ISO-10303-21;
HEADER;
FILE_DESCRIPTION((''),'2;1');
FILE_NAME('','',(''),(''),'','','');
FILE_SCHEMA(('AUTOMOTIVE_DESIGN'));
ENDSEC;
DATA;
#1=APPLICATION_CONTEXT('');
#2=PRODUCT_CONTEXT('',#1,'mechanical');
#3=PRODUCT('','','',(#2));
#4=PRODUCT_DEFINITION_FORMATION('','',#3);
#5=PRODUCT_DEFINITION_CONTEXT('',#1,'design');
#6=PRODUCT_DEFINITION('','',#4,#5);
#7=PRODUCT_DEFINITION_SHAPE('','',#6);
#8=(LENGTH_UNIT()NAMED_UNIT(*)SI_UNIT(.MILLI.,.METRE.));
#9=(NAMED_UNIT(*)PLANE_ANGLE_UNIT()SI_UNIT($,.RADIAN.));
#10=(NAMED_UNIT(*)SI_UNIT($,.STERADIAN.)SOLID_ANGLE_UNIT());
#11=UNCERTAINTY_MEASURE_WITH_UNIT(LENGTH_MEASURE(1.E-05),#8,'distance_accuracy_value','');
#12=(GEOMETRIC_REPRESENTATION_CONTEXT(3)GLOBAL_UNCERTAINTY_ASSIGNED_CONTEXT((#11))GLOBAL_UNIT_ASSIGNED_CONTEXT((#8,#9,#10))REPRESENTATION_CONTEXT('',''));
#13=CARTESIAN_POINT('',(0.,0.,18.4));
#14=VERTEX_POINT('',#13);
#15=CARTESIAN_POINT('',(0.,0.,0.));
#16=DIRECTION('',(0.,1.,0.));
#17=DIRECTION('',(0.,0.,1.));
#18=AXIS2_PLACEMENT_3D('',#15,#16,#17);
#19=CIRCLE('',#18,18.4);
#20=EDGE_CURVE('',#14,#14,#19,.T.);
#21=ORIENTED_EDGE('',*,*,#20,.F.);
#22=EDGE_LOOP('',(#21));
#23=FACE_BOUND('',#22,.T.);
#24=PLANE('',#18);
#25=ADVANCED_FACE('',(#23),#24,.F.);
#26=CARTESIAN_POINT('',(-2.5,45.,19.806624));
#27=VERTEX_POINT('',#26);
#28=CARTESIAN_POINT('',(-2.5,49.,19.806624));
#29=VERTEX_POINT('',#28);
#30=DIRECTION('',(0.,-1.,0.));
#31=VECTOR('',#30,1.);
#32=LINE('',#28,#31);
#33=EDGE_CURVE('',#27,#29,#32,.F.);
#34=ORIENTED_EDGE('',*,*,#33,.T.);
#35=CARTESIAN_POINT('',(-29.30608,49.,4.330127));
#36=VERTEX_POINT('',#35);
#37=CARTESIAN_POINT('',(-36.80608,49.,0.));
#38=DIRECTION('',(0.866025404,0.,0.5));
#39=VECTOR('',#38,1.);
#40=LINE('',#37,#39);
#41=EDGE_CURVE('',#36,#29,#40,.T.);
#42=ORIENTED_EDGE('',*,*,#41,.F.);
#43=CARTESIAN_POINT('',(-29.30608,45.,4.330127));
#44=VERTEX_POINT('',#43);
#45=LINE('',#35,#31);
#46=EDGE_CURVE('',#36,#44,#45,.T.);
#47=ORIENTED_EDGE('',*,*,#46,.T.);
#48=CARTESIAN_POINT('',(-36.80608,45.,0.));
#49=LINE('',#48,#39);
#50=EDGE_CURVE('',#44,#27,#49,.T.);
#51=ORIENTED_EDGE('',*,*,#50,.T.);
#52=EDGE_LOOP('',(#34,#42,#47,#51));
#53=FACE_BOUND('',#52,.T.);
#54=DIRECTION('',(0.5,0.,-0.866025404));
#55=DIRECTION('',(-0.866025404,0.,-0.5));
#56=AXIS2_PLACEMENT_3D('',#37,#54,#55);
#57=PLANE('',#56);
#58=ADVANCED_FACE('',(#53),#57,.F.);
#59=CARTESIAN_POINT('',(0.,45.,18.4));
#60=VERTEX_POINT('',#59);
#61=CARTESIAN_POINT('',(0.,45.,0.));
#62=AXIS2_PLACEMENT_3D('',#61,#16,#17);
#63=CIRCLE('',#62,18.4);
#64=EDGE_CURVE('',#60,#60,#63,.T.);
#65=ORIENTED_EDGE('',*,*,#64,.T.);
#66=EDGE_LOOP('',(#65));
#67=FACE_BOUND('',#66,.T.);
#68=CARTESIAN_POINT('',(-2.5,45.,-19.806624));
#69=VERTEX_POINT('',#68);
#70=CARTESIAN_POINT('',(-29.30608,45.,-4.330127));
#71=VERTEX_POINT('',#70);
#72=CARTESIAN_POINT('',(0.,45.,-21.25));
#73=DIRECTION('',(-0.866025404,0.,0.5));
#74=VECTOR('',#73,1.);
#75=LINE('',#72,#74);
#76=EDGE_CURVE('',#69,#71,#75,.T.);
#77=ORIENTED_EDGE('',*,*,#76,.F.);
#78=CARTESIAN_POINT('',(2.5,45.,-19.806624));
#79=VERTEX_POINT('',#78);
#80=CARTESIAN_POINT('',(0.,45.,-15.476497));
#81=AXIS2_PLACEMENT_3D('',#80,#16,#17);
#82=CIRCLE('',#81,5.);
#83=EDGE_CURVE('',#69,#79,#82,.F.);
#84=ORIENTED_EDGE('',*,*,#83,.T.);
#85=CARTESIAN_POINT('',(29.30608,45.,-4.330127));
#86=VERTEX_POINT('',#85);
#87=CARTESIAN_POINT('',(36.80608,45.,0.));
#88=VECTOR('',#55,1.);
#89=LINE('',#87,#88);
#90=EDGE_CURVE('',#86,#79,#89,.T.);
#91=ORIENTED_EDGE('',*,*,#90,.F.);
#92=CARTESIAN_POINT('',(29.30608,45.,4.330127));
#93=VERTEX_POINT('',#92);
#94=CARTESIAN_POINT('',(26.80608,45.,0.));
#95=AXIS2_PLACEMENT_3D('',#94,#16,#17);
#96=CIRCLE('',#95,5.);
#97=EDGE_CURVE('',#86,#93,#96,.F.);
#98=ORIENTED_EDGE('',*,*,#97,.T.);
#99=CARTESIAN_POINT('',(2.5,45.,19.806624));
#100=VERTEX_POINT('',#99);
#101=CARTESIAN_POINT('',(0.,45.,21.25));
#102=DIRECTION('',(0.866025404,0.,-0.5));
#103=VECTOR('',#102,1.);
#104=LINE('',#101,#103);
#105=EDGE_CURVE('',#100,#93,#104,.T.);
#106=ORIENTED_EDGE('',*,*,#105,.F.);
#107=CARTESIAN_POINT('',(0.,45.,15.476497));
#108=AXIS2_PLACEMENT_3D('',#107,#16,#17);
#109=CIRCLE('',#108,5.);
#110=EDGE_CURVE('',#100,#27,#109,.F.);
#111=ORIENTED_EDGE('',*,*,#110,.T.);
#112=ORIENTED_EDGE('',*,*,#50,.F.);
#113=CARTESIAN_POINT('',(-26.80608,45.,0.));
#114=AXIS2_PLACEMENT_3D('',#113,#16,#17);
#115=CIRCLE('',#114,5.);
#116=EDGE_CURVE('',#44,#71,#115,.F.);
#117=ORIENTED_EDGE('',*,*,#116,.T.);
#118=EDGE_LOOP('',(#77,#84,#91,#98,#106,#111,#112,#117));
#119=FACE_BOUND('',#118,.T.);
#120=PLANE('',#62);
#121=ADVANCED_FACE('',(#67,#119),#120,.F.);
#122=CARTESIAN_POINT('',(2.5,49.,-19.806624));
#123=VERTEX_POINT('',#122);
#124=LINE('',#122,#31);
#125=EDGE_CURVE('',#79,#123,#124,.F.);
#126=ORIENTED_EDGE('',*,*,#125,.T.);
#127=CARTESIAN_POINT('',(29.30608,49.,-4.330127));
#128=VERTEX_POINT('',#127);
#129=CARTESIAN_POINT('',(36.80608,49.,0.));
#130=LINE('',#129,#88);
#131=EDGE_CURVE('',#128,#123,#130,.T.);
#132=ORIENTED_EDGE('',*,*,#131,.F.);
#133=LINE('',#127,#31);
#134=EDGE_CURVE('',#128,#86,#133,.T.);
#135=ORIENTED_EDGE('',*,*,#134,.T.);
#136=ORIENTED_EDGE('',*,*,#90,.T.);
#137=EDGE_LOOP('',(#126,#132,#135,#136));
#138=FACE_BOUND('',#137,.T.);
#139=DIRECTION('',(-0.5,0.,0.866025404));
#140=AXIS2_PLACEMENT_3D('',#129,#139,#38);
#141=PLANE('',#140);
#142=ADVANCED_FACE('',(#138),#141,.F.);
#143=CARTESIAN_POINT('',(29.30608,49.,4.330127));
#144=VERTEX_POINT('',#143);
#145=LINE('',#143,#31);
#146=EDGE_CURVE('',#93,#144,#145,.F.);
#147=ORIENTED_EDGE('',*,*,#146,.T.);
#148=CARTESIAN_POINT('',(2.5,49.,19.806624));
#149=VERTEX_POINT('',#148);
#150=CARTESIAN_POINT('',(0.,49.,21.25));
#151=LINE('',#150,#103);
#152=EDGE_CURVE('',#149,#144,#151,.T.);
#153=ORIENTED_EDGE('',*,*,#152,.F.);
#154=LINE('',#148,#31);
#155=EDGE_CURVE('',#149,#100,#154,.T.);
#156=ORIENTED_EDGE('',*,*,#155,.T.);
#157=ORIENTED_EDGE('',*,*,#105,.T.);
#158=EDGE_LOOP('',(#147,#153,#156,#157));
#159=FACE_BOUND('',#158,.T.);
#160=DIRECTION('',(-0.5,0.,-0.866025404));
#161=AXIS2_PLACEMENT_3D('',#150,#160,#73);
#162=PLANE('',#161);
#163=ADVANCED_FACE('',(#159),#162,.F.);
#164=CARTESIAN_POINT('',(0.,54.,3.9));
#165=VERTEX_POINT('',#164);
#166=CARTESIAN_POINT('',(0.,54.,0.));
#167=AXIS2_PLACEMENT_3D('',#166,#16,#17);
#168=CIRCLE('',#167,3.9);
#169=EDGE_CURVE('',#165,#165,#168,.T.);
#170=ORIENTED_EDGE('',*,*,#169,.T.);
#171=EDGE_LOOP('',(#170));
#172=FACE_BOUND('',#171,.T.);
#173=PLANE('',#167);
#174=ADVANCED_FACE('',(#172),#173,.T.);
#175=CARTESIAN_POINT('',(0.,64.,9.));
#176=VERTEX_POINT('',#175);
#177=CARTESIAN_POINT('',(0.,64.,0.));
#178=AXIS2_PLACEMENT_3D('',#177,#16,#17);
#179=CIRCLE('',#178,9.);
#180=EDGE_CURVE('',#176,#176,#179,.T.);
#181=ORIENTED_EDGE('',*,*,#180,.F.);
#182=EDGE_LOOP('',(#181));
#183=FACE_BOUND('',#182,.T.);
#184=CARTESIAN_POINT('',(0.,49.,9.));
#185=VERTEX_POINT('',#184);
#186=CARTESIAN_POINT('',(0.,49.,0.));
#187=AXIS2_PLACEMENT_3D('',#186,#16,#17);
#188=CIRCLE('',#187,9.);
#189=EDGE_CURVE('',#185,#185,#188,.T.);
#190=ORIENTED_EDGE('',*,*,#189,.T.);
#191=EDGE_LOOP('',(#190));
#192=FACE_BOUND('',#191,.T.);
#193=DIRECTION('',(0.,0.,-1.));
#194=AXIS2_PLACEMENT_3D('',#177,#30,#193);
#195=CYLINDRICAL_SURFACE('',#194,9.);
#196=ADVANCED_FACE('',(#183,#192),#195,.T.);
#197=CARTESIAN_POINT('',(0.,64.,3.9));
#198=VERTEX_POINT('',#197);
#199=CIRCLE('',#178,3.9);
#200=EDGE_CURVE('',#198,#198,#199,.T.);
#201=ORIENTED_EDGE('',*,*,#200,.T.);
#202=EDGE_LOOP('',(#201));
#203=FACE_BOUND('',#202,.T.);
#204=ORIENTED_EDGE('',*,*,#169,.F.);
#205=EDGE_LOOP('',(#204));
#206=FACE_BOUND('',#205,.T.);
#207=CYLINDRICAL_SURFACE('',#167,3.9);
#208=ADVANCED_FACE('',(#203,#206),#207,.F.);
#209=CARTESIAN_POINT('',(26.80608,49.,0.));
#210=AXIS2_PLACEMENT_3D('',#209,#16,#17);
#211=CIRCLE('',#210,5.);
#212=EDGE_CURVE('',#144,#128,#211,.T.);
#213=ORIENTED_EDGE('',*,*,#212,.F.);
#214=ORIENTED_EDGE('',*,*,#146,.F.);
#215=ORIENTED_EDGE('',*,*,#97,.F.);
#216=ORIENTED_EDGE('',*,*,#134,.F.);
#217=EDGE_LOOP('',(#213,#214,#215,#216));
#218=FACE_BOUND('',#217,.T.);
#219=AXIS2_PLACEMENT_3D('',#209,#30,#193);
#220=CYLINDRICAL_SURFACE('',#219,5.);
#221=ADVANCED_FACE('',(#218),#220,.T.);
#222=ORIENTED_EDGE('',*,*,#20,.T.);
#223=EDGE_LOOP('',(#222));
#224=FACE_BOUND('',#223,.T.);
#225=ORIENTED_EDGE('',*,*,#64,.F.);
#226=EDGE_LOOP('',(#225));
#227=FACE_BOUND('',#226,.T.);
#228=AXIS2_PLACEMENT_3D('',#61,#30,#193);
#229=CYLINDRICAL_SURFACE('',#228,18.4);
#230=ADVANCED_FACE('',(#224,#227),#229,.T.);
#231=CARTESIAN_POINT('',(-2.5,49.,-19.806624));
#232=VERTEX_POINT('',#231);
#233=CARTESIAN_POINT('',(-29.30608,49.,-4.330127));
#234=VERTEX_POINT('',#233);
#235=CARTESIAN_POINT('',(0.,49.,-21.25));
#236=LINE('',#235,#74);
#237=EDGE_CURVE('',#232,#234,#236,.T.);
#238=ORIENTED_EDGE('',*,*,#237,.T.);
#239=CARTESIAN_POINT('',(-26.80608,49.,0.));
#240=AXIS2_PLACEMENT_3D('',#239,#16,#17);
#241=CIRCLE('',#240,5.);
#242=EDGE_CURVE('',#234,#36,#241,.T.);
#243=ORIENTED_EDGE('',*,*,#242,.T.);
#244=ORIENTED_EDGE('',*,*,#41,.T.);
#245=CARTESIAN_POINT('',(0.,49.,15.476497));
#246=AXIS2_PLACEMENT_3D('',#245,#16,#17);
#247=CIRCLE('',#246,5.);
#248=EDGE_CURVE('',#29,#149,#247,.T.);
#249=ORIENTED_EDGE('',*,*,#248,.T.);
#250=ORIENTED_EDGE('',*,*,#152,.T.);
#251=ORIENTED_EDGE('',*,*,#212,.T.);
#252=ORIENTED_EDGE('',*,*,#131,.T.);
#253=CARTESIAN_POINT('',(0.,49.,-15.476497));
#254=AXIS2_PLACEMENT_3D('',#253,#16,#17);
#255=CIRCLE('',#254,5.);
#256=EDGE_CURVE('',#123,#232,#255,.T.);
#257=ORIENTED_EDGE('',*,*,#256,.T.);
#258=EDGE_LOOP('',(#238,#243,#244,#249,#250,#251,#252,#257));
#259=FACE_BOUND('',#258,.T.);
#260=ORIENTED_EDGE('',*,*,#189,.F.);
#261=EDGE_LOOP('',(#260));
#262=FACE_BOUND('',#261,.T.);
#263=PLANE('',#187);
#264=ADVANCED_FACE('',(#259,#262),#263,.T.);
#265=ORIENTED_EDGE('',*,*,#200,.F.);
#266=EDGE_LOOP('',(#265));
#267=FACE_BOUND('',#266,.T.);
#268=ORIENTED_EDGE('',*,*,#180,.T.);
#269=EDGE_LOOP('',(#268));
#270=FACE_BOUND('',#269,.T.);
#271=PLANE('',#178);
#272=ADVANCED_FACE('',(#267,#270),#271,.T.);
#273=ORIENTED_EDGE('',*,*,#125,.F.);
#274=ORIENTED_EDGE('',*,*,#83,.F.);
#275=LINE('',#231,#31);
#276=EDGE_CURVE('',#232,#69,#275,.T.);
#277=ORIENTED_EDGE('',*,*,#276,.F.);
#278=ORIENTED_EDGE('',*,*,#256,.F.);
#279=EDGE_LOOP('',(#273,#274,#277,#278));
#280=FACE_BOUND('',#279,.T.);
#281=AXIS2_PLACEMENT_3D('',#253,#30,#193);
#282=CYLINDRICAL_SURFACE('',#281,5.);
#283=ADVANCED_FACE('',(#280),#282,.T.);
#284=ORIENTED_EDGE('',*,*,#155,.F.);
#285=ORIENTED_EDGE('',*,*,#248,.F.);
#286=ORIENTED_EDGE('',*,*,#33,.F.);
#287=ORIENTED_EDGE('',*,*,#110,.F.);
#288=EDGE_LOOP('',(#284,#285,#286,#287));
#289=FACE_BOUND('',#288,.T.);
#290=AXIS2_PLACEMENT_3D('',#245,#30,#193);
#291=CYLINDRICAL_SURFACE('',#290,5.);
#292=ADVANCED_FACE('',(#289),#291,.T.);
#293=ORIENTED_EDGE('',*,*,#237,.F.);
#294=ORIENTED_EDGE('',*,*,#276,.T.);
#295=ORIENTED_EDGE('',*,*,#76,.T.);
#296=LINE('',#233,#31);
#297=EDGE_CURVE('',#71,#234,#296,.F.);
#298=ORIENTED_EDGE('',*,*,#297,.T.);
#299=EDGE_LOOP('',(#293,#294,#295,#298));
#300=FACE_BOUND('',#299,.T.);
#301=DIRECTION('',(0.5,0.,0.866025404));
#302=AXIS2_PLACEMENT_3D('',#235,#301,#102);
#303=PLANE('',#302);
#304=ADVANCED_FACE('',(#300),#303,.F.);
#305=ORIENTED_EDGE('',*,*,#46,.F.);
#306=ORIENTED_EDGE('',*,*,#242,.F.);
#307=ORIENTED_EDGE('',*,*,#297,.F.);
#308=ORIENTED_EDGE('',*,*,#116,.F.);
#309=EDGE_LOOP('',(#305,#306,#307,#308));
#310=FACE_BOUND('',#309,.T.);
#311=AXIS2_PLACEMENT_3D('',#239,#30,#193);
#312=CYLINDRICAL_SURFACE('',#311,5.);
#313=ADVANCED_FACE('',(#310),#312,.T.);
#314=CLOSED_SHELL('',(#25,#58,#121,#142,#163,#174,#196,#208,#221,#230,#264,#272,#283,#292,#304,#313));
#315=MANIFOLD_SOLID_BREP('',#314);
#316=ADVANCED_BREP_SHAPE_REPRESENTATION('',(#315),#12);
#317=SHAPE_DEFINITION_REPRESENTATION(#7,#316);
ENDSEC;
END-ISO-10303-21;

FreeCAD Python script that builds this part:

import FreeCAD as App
import Part
import Sketcher

V = App.Vector
Q = App.Units.Quantity


def edges_at(feature, points):
    """Names of the edges that pass closest to the given points."""
    edges = feature.Shape.Edges
    near = lambda p: min(range(len(edges)), key=lambda i: edges[i].distToShape(Part.Vertex(*p))[0])
    return sorted({f"Edge{near(p) + 1}" for p in points})


def add_polygon(sketch, points):
    """Adds a closed chain of lines whose ends are joined by coincident constraints."""
    first, n = sketch.GeometryCount, len(points)
    for a, b in zip(points, points[1:] + points[:1]):
        sketch.addGeometry(Part.LineSegment(App.Vector(*a, 0), App.Vector(*b, 0)), False)
    for i in range(n):
        sketch.addConstraint(Sketcher.Constraint("Coincident", first + i, 2, first + (i + 1) % n, 1))

doc = App.newDocument("Part")
body = doc.addObject("PartDesign::Body", "Body")

sketch1 = doc.addObject("Sketcher::SketchObject", "Sketch")
body.addObject(sketch1)
sketch1.AttachmentSupport = (doc.XZ_Plane, [""])
sketch1.MapMode = "FlatFace"
sketch1.addGeometry(Part.Circle(V(0, 0, 0), V(0, 0, 1), 18), False)
sketch1.addConstraint(Sketcher.Constraint("Coincident", 0, 3, -1, 1))
sketch1.addConstraint(Sketcher.Constraint("Diameter", 0, 36.8))
pad1 = doc.addObject("PartDesign::Pad", "Pad")
body.addObject(pad1)
pad1.Profile = sketch1
pad1.Length = 45
pad1.Reversed = True

sketch2 = doc.addObject("Sketcher::SketchObject", "Sketch001")
body.addObject(sketch2)
sketch2.AttachmentSupport = (doc.XZ_Plane, [""])
sketch2.MapMode = "FlatFace"
sketch2.AttachmentOffset = App.Placement(V(0, 0, -45), App.Rotation())
add_polygon(sketch2, [(0, -21), (-37, 0), (0, 21), (37, 0)])
sketch2.addConstraint(Sketcher.Constraint("Symmetric", 0, 2, 2, 2, -1, 1))
sketch2.addConstraint(Sketcher.Constraint("Symmetric", 1, 2, 3, 2, -1, 1))
sketch2.addConstraint(Sketcher.Constraint("PointOnObject", 0, 2, -1))
sketch2.addConstraint(Sketcher.Constraint("PointOnObject", 1, 2, -2))
sketch2.addConstraint(Sketcher.Constraint("Angle", 0, Q("150 deg")))
sketch2.addConstraint(Sketcher.Constraint("Distance", 0, 42.5))
pad2 = doc.addObject("PartDesign::Pad", "Pad001")
body.addObject(pad2)
pad2.Profile = sketch2
pad2.Length = 4
pad2.Reversed = True
doc.recompute()

fillet = doc.addObject("PartDesign::Fillet", "Fillet")
body.addObject(fillet)
fillet.Base = (pad2, edges_at(pad2, [
    (36.806, 47, 0),
    (0, 47, -21.25),
    (-36.806, 47, 0),
    (0, 47, 21.25),
]))
fillet.Radius = 5

sketch3 = doc.addObject("Sketcher::SketchObject", "Sketch002")
body.addObject(sketch3)
sketch3.AttachmentSupport = (doc.XZ_Plane, [""])
sketch3.MapMode = "FlatFace"
sketch3.AttachmentOffset = App.Placement(V(0, 0, -49), App.Rotation())
sketch3.addGeometry(Part.Circle(V(0, 0, 0), V(0, 0, 1), 9), False)
sketch3.addConstraint(Sketcher.Constraint("Coincident", 0, 3, -1, 1))
sketch3.addConstraint(Sketcher.Constraint("Diameter", 0, 18.0))
pad3 = doc.addObject("PartDesign::Pad", "Pad002")
body.addObject(pad3)
pad3.Profile = sketch3
pad3.Length = 15
pad3.Reversed = True

sketch4 = doc.addObject("Sketcher::SketchObject", "Sketch003")
body.addObject(sketch4)
sketch4.AttachmentSupport = (doc.XZ_Plane, [""])
sketch4.MapMode = "FlatFace"
sketch4.AttachmentOffset = App.Placement(V(0, 0, -64), App.Rotation())
sketch4.addGeometry(Part.Circle(V(0, 0, 0), V(0, 0, 1), 3.9), False)
sketch4.addConstraint(Sketcher.Constraint("Coincident", 0, 3, -1, 1))
sketch4.addConstraint(Sketcher.Constraint("Diameter", 0, 7.8))
pocket1 = doc.addObject("PartDesign::Pocket", "Pocket")
body.addObject(pocket1)
pocket1.Profile = sketch4
pocket1.Length = 10
pocket1.Reversed = True

doc.recompute()
